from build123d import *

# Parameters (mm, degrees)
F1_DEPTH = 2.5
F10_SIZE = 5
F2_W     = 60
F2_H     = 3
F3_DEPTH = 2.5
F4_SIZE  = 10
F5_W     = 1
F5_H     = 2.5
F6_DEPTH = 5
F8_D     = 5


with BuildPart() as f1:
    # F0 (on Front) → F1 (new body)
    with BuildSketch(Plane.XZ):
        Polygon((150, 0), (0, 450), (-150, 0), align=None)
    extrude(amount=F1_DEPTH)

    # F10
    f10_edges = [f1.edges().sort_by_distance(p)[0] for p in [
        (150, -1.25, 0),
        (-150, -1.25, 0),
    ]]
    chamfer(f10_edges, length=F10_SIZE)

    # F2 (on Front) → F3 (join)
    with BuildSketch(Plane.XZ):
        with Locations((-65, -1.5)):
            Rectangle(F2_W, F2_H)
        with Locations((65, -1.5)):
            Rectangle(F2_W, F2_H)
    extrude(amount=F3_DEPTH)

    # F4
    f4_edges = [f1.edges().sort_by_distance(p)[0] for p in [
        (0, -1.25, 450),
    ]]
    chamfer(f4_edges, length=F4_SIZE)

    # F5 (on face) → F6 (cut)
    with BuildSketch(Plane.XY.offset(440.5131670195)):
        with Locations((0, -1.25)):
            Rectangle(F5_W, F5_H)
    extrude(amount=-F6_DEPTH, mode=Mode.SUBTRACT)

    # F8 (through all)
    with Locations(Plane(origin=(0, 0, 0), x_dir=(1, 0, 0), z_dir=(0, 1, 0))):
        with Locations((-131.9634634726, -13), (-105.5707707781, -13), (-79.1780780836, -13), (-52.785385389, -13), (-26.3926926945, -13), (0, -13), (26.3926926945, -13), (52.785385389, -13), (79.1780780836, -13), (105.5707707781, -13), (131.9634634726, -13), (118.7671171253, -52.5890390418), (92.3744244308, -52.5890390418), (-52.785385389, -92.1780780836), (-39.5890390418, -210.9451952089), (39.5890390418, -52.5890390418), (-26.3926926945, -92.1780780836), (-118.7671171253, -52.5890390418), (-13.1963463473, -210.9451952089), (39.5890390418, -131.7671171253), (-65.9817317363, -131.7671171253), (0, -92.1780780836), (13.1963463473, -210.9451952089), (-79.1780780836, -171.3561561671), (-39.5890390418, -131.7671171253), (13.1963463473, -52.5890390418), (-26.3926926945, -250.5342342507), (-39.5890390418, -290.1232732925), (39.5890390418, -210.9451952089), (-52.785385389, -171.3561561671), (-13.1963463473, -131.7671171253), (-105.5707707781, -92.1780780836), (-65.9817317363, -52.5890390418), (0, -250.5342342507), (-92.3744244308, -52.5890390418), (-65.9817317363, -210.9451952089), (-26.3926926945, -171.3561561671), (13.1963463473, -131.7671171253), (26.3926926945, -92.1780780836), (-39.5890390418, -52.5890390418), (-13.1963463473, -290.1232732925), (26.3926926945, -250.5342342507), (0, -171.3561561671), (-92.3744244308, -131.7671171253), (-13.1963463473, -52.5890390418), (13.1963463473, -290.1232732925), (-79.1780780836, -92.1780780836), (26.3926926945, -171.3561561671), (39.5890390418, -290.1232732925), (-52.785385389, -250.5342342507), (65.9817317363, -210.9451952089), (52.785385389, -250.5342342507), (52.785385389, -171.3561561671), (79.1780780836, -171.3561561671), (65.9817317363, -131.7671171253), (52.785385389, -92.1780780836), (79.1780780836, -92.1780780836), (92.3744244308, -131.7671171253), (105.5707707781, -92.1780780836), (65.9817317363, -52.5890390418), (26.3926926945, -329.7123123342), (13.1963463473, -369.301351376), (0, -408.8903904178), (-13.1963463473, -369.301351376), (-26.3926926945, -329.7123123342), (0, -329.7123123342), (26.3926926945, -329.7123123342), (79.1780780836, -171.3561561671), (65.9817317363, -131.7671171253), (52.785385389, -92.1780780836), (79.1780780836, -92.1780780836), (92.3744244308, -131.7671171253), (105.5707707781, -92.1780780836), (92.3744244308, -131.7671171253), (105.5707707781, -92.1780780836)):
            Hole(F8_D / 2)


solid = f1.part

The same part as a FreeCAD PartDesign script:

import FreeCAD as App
import Part
import Sketcher
Q = App.Units.Quantity


def edges_at(feature, points):
    """Names of the edges that pass closest to the given points."""
    edges = feature.Shape.Edges
    near = lambda p: min(range(len(edges)), key=lambda i: edges[i].distToShape(Part.Vertex(*p))[0])
    return sorted({f"Edge{near(p) + 1}" for p in points})


def add_polygon(sketch, points):
    """Adds a closed chain of lines whose ends are joined by coincident constraints."""
    first, n = sketch.GeometryCount, len(points)
    for a, b in zip(points, points[1:] + points[:1]):
        sketch.addGeometry(Part.LineSegment(App.Vector(*a, 0), App.Vector(*b, 0)), False)
    for i in range(n):
        sketch.addConstraint(Sketcher.Constraint("Coincident", first + i, 2, first + (i + 1) % n, 1))

doc = App.newDocument("Part")
body = doc.addObject("PartDesign::Body", "Body")

# Sketch on XZ plane
sketch1 = body.newObject("Sketcher::SketchObject", "Sketch")
sketch1.AttachmentSupport = (doc.getObject("XZ_Plane"), [""])
sketch1.MapMode = "FlatFace"
add_polygon(sketch1, [(150, 0), (0, 450), (-150, 0)])  # lines 0-2
sketch1.addConstraint(Sketcher.Constraint("Horizontal", 2))
sketch1.addConstraint(Sketcher.Constraint("Symmetric", 1, 2, 2, 2, -1, 1))
sketch1.addConstraint(Sketcher.Constraint("PointOnObject", 0, 2, -2))
sketch1.addConstraint(Sketcher.Constraint("DistanceX", 2, 1, 2, 2, Q("300 mm")))
sketch1.addConstraint(Sketcher.Constraint("DistanceY", -1, 1, 0, 2, Q("450 mm")))
pad1 = body.newObject("PartDesign::Pad", "Pad")
pad1.Profile = sketch1
pad1.Length = 2.5
doc.recompute()

chamfer = body.newObject("PartDesign::Chamfer", "Chamfer")
chamfer.Base = (pad1, edges_at(pad1, [(150, -1.25, 0), (-150, -1.25, 0)]))
chamfer.Size = 5

# Sketch on XZ plane
sketch2 = body.newObject("Sketcher::SketchObject", "Sketch001")
sketch2.AttachmentSupport = (doc.getObject("XZ_Plane"), [""])
sketch2.MapMode = "FlatFace"
add_polygon(sketch2, [(-95, 0), (-95, -3), (-35, -3), (-35, 0)])  # lines 0-3
add_polygon(sketch2, [(35, 0), (35, -3), (95, -3), (95, 0)])  # lines 4-7
sketch2.addConstraint(Sketcher.Constraint("Vertical", 0))
sketch2.addConstraint(Sketcher.Constraint("Horizontal", 1))
sketch2.addConstraint(Sketcher.Constraint("Vertical", 2))
sketch2.addConstraint(Sketcher.Constraint("Horizontal", 3))
sketch2.addConstraint(Sketcher.Constraint("Vertical", 4))
sketch2.addConstraint(Sketcher.Constraint("Horizontal", 5))
sketch2.addConstraint(Sketcher.Constraint("Vertical", 6))
sketch2.addConstraint(Sketcher.Constraint("Horizontal", 7))
sketch2.addConstraint(Sketcher.Constraint("Symmetric", 3, 2, 6, 2, -1, 1))
sketch2.addConstraint(Sketcher.Constraint("Symmetric", 1, 2, 4, 2, -2))
sketch2.addConstraint(Sketcher.Constraint("PointOnObject", 2, 2, -1))
sketch2.addConstraint(Sketcher.Constraint("DistanceX", 1, 1, 1, 2, Q("60 mm")))
sketch2.addConstraint(Sketcher.Constraint("DistanceY", 0, 2, 0, 1, Q("3 mm")))
sketch2.addConstraint(Sketcher.Constraint("DistanceX", 0, 2, -1, 1, Q("95 mm")))
pad2 = body.newObject("PartDesign::Pad", "Pad001")
pad2.Profile = sketch2
pad2.Length = 2.5
doc.recompute()

chamfer2 = body.newObject("PartDesign::Chamfer", "Chamfer001")
chamfer2.Base = (pad2, edges_at(pad2, [(0, -1.25, 450)]))
chamfer2.Size = 10

# Sketch on XY plane
sketch3 = body.newObject("Sketcher::SketchObject", "Sketch002")
sketch3.AttachmentSupport = (doc.getObject("XY_Plane"), [""])
sketch3.MapMode = "FlatFace"
sketch3.AttachmentOffset = App.Placement(App.Vector(0, 0, 440.513167), App.Rotation())
add_polygon(sketch3, [(-0.5, 0), (-0.5, -2.5), (0.5, -2.5), (0.5, 0)])  # lines 0-3
sketch3.addConstraint(Sketcher.Constraint("Vertical", 0))
sketch3.addConstraint(Sketcher.Constraint("Horizontal", 1))
sketch3.addConstraint(Sketcher.Constraint("Vertical", 2))
sketch3.addConstraint(Sketcher.Constraint("Horizontal", 3))
sketch3.addConstraint(Sketcher.Constraint("Symmetric", 2, 2, 3, 2, -1, 1))
sketch3.addConstraint(Sketcher.Constraint("DistanceX", 1, 1, 1, 2, Q("1 mm")))
sketch3.addConstraint(Sketcher.Constraint("DistanceY", 0, 2, 0, 1, Q("2.5 mm")))
pocket1 = body.newObject("PartDesign::Pocket", "Pocket")
pocket1.Profile = sketch3
pocket1.Length = 5

# Sketch on XZ plane
sketch4 = body.newObject("Sketcher::SketchObject", "Sketch003")
sketch4.AttachmentSupport = (doc.getObject("XZ_Plane"), [""])
sketch4.MapMode = "FlatFace"
sketch4.addGeometry(Part.Circle(App.Vector(-132, 13, 0), App.Vector(0, 0, 1), 2.5), False)
sketch4.addGeometry(Part.Circle(App.Vector(-105.6, 13, 0), App.Vector(0, 0, 1), 2.5), False)
sketch4.addGeometry(Part.Circle(App.Vector(-79.2, 13, 0), App.Vector(0, 0, 1), 2.5), False)
sketch4.addGeometry(Part.Circle(App.Vector(-52.8, 13, 0), App.Vector(0, 0, 1), 2.5), False)
sketch4.addGeometry(Part.Circle(App.Vector(-26.4, 13, 0), App.Vector(0, 0, 1), 2.5), False)
sketch4.addGeometry(Part.Circle(App.Vector(0, 13, 0), App.Vector(0, 0, 1), 2.5), False)
sketch4.addGeometry(Part.Circle(App.Vector(26.4, 13, 0), App.Vector(0, 0, 1), 2.5), False)
sketch4.addGeometry(Part.Circle(App.Vector(52.8, 13, 0), App.Vector(0, 0, 1), 2.5), False)
sketch4.addGeometry(Part.Circle(App.Vector(79.2, 13, 0), App.Vector(0, 0, 1), 2.5), False)
sketch4.addGeometry(Part.Circle(App.Vector(105.6, 13, 0), App.Vector(0, 0, 1), 2.5), False)
sketch4.addGeometry(Part.Circle(App.Vector(132, 13, 0), App.Vector(0, 0, 1), 2.5), False)
sketch4.addGeometry(Part.Circle(App.Vector(118.8, 52.6, 0), App.Vector(0, 0, 1), 2.5), False)
sketch4.addGeometry(Part.Circle(App.Vector(92.4, 52.6, 0), App.Vector(0, 0, 1), 2.5), False)
sketch4.addGeometry(Part.Circle(App.Vector(-52.8, 92.2, 0), App.Vector(0, 0, 1), 2.5), False)
sketch4.addGeometry(Part.Circle(App.Vector(-39.6, 210.9, 0), App.Vector(0, 0, 1), 2.5), False)
sketch4.addGeometry(Part.Circle(App.Vector(39.6, 52.6, 0), App.Vector(0, 0, 1), 2.5), False)
sketch4.addGeometry(Part.Circle(App.Vector(-26.4, 92.2, 0), App.Vector(0, 0, 1), 2.5), False)
sketch4.addGeometry(Part.Circle(App.Vector(-118.8, 52.6, 0), App.Vector(0, 0, 1), 2.5), False)
sketch4.addGeometry(Part.Circle(App.Vector(-13.2, 210.9, 0), App.Vector(0, 0, 1), 2.5), False)
sketch4.addGeometry(Part.Circle(App.Vector(39.6, 131.8, 0), App.Vector(0, 0, 1), 2.5), False)
sketch4.addGeometry(Part.Circle(App.Vector(-66, 131.8, 0), App.Vector(0, 0, 1), 2.5), False)
sketch4.addGeometry(Part.Circle(App.Vector(0, 92.2, 0), App.Vector(0, 0, 1), 2.5), False)
sketch4.addGeometry(Part.Circle(App.Vector(13.2, 210.9, 0), App.Vector(0, 0, 1), 2.5), False)
sketch4.addGeometry(Part.Circle(App.Vector(-79.2, 171.4, 0), App.Vector(0, 0, 1), 2.5), False)
sketch4.addGeometry(Part.Circle(App.Vector(-39.6, 131.8, 0), App.Vector(0, 0, 1), 2.5), False)
sketch4.addGeometry(Part.Circle(App.Vector(13.2, 52.6, 0), App.Vector(0, 0, 1), 2.5), False)
sketch4.addGeometry(Part.Circle(App.Vector(-26.4, 250.5, 0), App.Vector(0, 0, 1), 2.5), False)
sketch4.addGeometry(Part.Circle(App.Vector(-39.6, 290.1, 0), App.Vector(0, 0, 1), 2.5), False)
sketch4.addGeometry(Part.Circle(App.Vector(39.6, 210.9, 0), App.Vector(0, 0, 1), 2.5), False)
sketch4.addGeometry(Part.Circle(App.Vector(-52.8, 171.4, 0), App.Vector(0, 0, 1), 2.5), False)
sketch4.addGeometry(Part.Circle(App.Vector(-13.2, 131.8, 0), App.Vector(0, 0, 1), 2.5), False)
sketch4.addGeometry(Part.Circle(App.Vector(-105.6, 92.2, 0), App.Vector(0, 0, 1), 2.5), False)
sketch4.addGeometry(Part.Circle(App.Vector(-66, 52.6, 0), App.Vector(0, 0, 1), 2.5), False)
sketch4.addGeometry(Part.Circle(App.Vector(0, 250.5, 0), App.Vector(0, 0, 1), 2.5), False)
sketch4.addGeometry(Part.Circle(App.Vector(-92.4, 52.6, 0), App.Vector(0, 0, 1), 2.5), False)
sketch4.addGeometry(Part.Circle(App.Vector(-66, 210.9, 0), App.Vector(0, 0, 1), 2.5), False)
sketch4.addGeometry(Part.Circle(App.Vector(-26.4, 171.4, 0), App.Vector(0, 0, 1), 2.5), False)
sketch4.addGeometry(Part.Circle(App.Vector(13.2, 131.8, 0), App.Vector(0, 0, 1), 2.5), False)
sketch4.addGeometry(Part.Circle(App.Vector(26.4, 92.2, 0), App.Vector(0, 0, 1), 2.5), False)
sketch4.addGeometry(Part.Circle(App.Vector(-39.6, 52.6, 0), App.Vector(0, 0, 1), 2.5), False)
sketch4.addGeometry(Part.Circle(App.Vector(-13.2, 290.1, 0), App.Vector(0, 0, 1), 2.5), False)
sketch4.addGeometry(Part.Circle(App.Vector(26.4, 250.5, 0), App.Vector(0, 0, 1), 2.5), False)
sketch4.addGeometry(Part.Circle(App.Vector(0, 171.4, 0), App.Vector(0, 0, 1), 2.5), False)
sketch4.addGeometry(Part.Circle(App.Vector(-92.4, 131.8, 0), App.Vector(0, 0, 1), 2.5), False)
sketch4.addGeometry(Part.Circle(App.Vector(-13.2, 52.6, 0), App.Vector(0, 0, 1), 2.5), False)
sketch4.addGeometry(Part.Circle(App.Vector(13.2, 290.1, 0), App.Vector(0, 0, 1), 2.5), False)
sketch4.addGeometry(Part.Circle(App.Vector(-79.2, 92.2, 0), App.Vector(0, 0, 1), 2.5), False)
sketch4.addGeometry(Part.Circle(App.Vector(26.4, 171.4, 0), App.Vector(0, 0, 1), 2.5), False)
sketch4.addGeometry(Part.Circle(App.Vector(39.6, 290.1, 0), App.Vector(0, 0, 1), 2.5), False)
sketch4.addGeometry(Part.Circle(App.Vector(-52.8, 250.5, 0), App.Vector(0, 0, 1), 2.5), False)
sketch4.addGeometry(Part.Circle(App.Vector(66, 210.9, 0), App.Vector(0, 0, 1), 2.5), False)
sketch4.addGeometry(Part.Circle(App.Vector(52.8, 250.5, 0), App.Vector(0, 0, 1), 2.5), False)
sketch4.addGeometry(Part.Circle(App.Vector(52.8, 171.4, 0), App.Vector(0, 0, 1), 2.5), False)
sketch4.addGeometry(Part.Circle(App.Vector(79.2, 171.4, 0), App.Vector(0, 0, 1), 2.5), False)
sketch4.addGeometry(Part.Circle(App.Vector(66, 131.8, 0), App.Vector(0, 0, 1), 2.5), False)
sketch4.addGeometry(Part.Circle(App.Vector(52.8, 92.2, 0), App.Vector(0, 0, 1), 2.5), False)
sketch4.addGeometry(Part.Circle(App.Vector(79.2, 92.2, 0), App.Vector(0, 0, 1), 2.5), False)
sketch4.addGeometry(Part.Circle(App.Vector(92.4, 131.8, 0), App.Vector(0, 0, 1), 2.5), False)
sketch4.addGeometry(Part.Circle(App.Vector(105.6, 92.2, 0), App.Vector(0, 0, 1), 2.5), False)
sketch4.addGeometry(Part.Circle(App.Vector(66, 52.6, 0), App.Vector(0, 0, 1), 2.5), False)
sketch4.addGeometry(Part.Circle(App.Vector(26.4, 329.7, 0), App.Vector(0, 0, 1), 2.5), False)
sketch4.addGeometry(Part.Circle(App.Vector(13.2, 369.3, 0), App.Vector(0, 0, 1), 2.5), False)
sketch4.addGeometry(Part.Circle(App.Vector(0, 408.9, 0), App.Vector(0, 0, 1), 2.5), False)
sketch4.addGeometry(Part.Circle(App.Vector(-13.2, 369.3, 0), App.Vector(0, 0, 1), 2.5), False)
sketch4.addGeometry(Part.Circle(App.Vector(-26.4, 329.7, 0), App.Vector(0, 0, 1), 2.5), False)
sketch4.addGeometry(Part.Circle(App.Vector(0, 329.7, 0), App.Vector(0, 0, 1), 2.5), False)
sketch4.addGeometry(Part.Circle(App.Vector(26.4, 329.7, 0), App.Vector(0, 0, 1), 2.5), False)
sketch4.addGeometry(Part.Circle(App.Vector(79.2, 171.4, 0), App.Vector(0, 0, 1), 2.5), False)
sketch4.addGeometry(Part.Circle(App.Vector(66, 131.8, 0), App.Vector(0, 0, 1), 2.5), False)
sketch4.addGeometry(Part.Circle(App.Vector(52.8, 92.2, 0), App.Vector(0, 0, 1), 2.5), False)
sketch4.addGeometry(Part.Circle(App.Vector(79.2, 92.2, 0), App.Vector(0, 0, 1), 2.5), False)
sketch4.addGeometry(Part.Circle(App.Vector(92.4, 131.8, 0), App.Vector(0, 0, 1), 2.5), False)
sketch4.addGeometry(Part.Circle(App.Vector(105.6, 92.2, 0), App.Vector(0, 0, 1), 2.5), False)
sketch4.addGeometry(Part.Circle(App.Vector(92.4, 131.8, 0), App.Vector(0, 0, 1), 2.5), False)
sketch4.addGeometry(Part.Circle(App.Vector(105.6, 92.2, 0), App.Vector(0, 0, 1), 2.5), False)
sketch4.addConstraint(Sketcher.Constraint("Coincident", 66, 3, 60, 3))
sketch4.addConstraint(Sketcher.Constraint("Coincident", 67, 3, 53, 3))
sketch4.addConstraint(Sketcher.Constraint("Coincident", 68, 3, 54, 3))
sketch4.addConstraint(Sketcher.Constraint("Coincident", 69, 3, 55, 3))
sketch4.addConstraint(Sketcher.Constraint("Coincident", 70, 3, 56, 3))
sketch4.addConstraint(Sketcher.Constraint("Coincident", 71, 3, 57, 3))
sketch4.addConstraint(Sketcher.Constraint("Coincident", 72, 3, 58, 3))
sketch4.addConstraint(Sketcher.Constraint("Coincident", 73, 3, 57, 3))
sketch4.addConstraint(Sketcher.Constraint("Coincident", 74, 3, 58, 3))
sketch4.addConstraint(Sketcher.Constraint("Equal", 0, 1))
sketch4.addConstraint(Sketcher.Constraint("Equal", 1, 2))
sketch4.addConstraint(Sketcher.Constraint("Equal", 2, 3))
sketch4.addConstraint(Sketcher.Constraint("Equal", 3, 4))
sketch4.addConstraint(Sketcher.Constraint("Equal", 4, 5))
sketch4.addConstraint(Sketcher.Constraint("Equal", 5, 6))
sketch4.addConstraint(Sketcher.Constraint("Equal", 6, 7))
sketch4.addConstraint(Sketcher.Constraint("Equal", 7, 8))
sketch4.addConstraint(Sketcher.Constraint("Equal", 8, 9))
sketch4.addConstraint(Sketcher.Constraint("Equal", 9, 10))
sketch4.addConstraint(Sketcher.Constraint("Equal", 10, 11))
sketch4.addConstraint(Sketcher.Constraint("Equal", 11, 12))
sketch4.addConstraint(Sketcher.Constraint("Equal", 12, 13))
sketch4.addConstraint(Sketcher.Constraint("Equal", 13, 14))
sketch4.addConstraint(Sketcher.Constraint("Equal", 14, 15))
sketch4.addConstraint(Sketcher.Constraint("Equal", 15, 16))
sketch4.addConstraint(Sketcher.Constraint("Equal", 16, 17))
sketch4.addConstraint(Sketcher.Constraint("Equal", 17, 18))
sketch4.addConstraint(Sketcher.Constraint("Equal", 18, 19))
sketch4.addConstraint(Sketcher.Constraint("Equal", 19, 20))
sketch4.addConstraint(Sketcher.Constraint("Equal", 20, 21))
sketch4.addConstraint(Sketcher.Constraint("Equal", 21, 22))
sketch4.addConstraint(Sketcher.Constraint("Equal", 22, 23))
sketch4.addConstraint(Sketcher.Constraint("Equal", 23, 24))
sketch4.addConstraint(Sketcher.Constraint("Equal", 24, 25))
sketch4.addConstraint(Sketcher.Constraint("Equal", 25, 26))
sketch4.addConstraint(Sketcher.Constraint("Equal", 26, 27))
sketch4.addConstraint(Sketcher.Constraint("Equal", 27, 28))
sketch4.addConstraint(Sketcher.Constraint("Equal", 28, 29))
sketch4.addConstraint(Sketcher.Constraint("Equal", 29, 30))
sketch4.addConstraint(Sketcher.Constraint("Equal", 30, 31))
sketch4.addConstraint(Sketcher.Constraint("Equal", 31, 32))
sketch4.addConstraint(Sketcher.Constraint("Equal", 32, 33))
sketch4.addConstraint(Sketcher.Constraint("Equal", 33, 34))
sketch4.addConstraint(Sketcher.Constraint("Equal", 34, 35))
sketch4.addConstraint(Sketcher.Constraint("Equal", 35, 36))
sketch4.addConstraint(Sketcher.Constraint("Equal", 36, 37))
sketch4.addConstraint(Sketcher.Constraint("Equal", 37, 38))
sketch4.addConstraint(Sketcher.Constraint("Equal", 38, 39))
sketch4.addConstraint(Sketcher.Constraint("Equal", 39, 40))
sketch4.addConstraint(Sketcher.Constraint("Equal", 40, 41))
sketch4.addConstraint(Sketcher.Constraint("Equal", 41, 42))
sketch4.addConstraint(Sketcher.Constraint("Equal", 42, 43))
sketch4.addConstraint(Sketcher.Constraint("Equal", 43, 44))
sketch4.addConstraint(Sketcher.Constraint("Equal", 44, 45))
sketch4.addConstraint(Sketcher.Constraint("Equal", 45, 46))
sketch4.addConstraint(Sketcher.Constraint("Equal", 46, 47))
sketch4.addConstraint(Sketcher.Constraint("Equal", 47, 48))
sketch4.addConstraint(Sketcher.Constraint("Equal", 48, 49))
sketch4.addConstraint(Sketcher.Constraint("Equal", 49, 50))
sketch4.addConstraint(Sketcher.Constraint("Equal", 50, 51))
sketch4.addConstraint(Sketcher.Constraint("Equal", 51, 52))
sketch4.addConstraint(Sketcher.Constraint("Equal", 52, 53))
sketch4.addConstraint(Sketcher.Constraint("Equal", 53, 54))
sketch4.addConstraint(Sketcher.Constraint("Equal", 54, 55))
sketch4.addConstraint(Sketcher.Constraint("Equal", 55, 56))
sketch4.addConstraint(Sketcher.Constraint("Equal", 56, 57))
sketch4.addConstraint(Sketcher.Constraint("Equal", 57, 58))
sketch4.addConstraint(Sketcher.Constraint("Equal", 58, 59))
sketch4.addConstraint(Sketcher.Constraint("Equal", 59, 60))
sketch4.addConstraint(Sketcher.Constraint("Equal", 60, 61))
sketch4.addConstraint(Sketcher.Constraint("Equal", 61, 62))
sketch4.addConstraint(Sketcher.Constraint("Equal", 62, 63))
sketch4.addConstraint(Sketcher.Constraint("Equal", 63, 64))
sketch4.addConstraint(Sketcher.Constraint("Equal", 64, 65))
sketch4.addConstraint(Sketcher.Constraint("Equal", 65, 66))
sketch4.addConstraint(Sketcher.Constraint("Equal", 66, 67))
sketch4.addConstraint(Sketcher.Constraint("Equal", 67, 68))
sketch4.addConstraint(Sketcher.Constraint("Equal", 68, 69))
sketch4.addConstraint(Sketcher.Constraint("Equal", 69, 70))
sketch4.addConstraint(Sketcher.Constraint("Equal", 70, 71))
sketch4.addConstraint(Sketcher.Constraint("Equal", 71, 72))
sketch4.addConstraint(Sketcher.Constraint("Equal", 72, 73))
sketch4.addConstraint(Sketcher.Constraint("Equal", 73, 74))
sketch4.addConstraint(Sketcher.Constraint("Symmetric", 4, 3, 6, 3, -2))
sketch4.addConstraint(Sketcher.Constraint("Symmetric", 3, 3, 7, 3, -2))
sketch4.addConstraint(Sketcher.Constraint("Symmetric", 2, 3, 8, 3, -2))
sketch4.addConstraint(Sketcher.Constraint("Symmetric", 1, 3, 9, 3, -2))
sketch4.addConstraint(Sketcher.Constraint("Symmetric", 0, 3, 10, 3, -2))
sketch4.addConstraint(Sketcher.Constraint("Symmetric", 11, 3, 17, 3, -2))
sketch4.addConstraint(Sketcher.Constraint("Symmetric", 18, 3, 22, 3, -2))
sketch4.addConstraint(Sketcher.Constraint("Symmetric", 19, 3, 24, 3, -2))
sketch4.addConstraint(Sketcher.Constraint("Symmetric", 14, 3, 28, 3, -2))
sketch4.addConstraint(Sketcher.Constraint("Symmetric", 12, 3, 34, 3, -2))
sketch4.addConstraint(Sketcher.Constraint("Symmetric", 30, 3, 37, 3, -2))
sketch4.addConstraint(Sketcher.Constraint("Symmetric", 16, 3, 38, 3, -2))
sketch4.addConstraint(Sketcher.Constraint("Symmetric", 15, 3, 39, 3, -2))
sketch4.addConstraint(Sketcher.Constraint("Symmetric", 26, 3, 41, 3, -2))
sketch4.addConstraint(Sketcher.Constraint("Symmetric", 25, 3, 44, 3, -2))
sketch4.addConstraint(Sketcher.Constraint("Symmetric", 40, 3, 45, 3, -2))
sketch4.addConstraint(Sketcher.Constraint("Symmetric", 36, 3, 47, 3, -2))
sketch4.addConstraint(Sketcher.Constraint("Symmetric", 27, 3, 48, 3, -2))
sketch4.addConstraint(Sketcher.Constraint("Symmetric", 35, 3, 50, 3, -2))
sketch4.addConstraint(Sketcher.Constraint("Symmetric", 49, 3, 51, 3, -2))
sketch4.addConstraint(Sketcher.Constraint("Symmetric", 29, 3, 52, 3, -2))
sketch4.addConstraint(Sketcher.Constraint("Symmetric", 23, 3, 53, 3, -2))
sketch4.addConstraint(Sketcher.Constraint("Symmetric", 20, 3, 54, 3, -2))
sketch4.addConstraint(Sketcher.Constraint("Symmetric", 13, 3, 55, 3, -2))
sketch4.addConstraint(Sketcher.Constraint("Symmetric", 46, 3, 56, 3, -2))
sketch4.addConstraint(Sketcher.Constraint("Symmetric", 43, 3, 57, 3, -2))
sketch4.addConstraint(Sketcher.Constraint("Symmetric", 31, 3, 58, 3, -2))
sketch4.addConstraint(Sketcher.Constraint("Symmetric", 32, 3, 59, 3, -2))
sketch4.addConstraint(Sketcher.Constraint("Symmetric", 61, 3, 63, 3, -2))
sketch4.addConstraint(Sketcher.Constraint("Symmetric", 60, 3, 64, 3, -2))
sketch4.addConstraint(Sketcher.Constraint("PointOnObject", 5, 3, -2))
sketch4.addConstraint(Sketcher.Constraint("PointOnObject", 21, 3, -2))
sketch4.addConstraint(Sketcher.Constraint("PointOnObject", 33, 3, -2))
sketch4.addConstraint(Sketcher.Constraint("PointOnObject", 42, 3, -2))
sketch4.addConstraint(Sketcher.Constraint("PointOnObject", 62, 3, -2))
sketch4.addConstraint(Sketcher.Constraint("PointOnObject", 65, 3, -2))
sketch4.addConstraint(Sketcher.Constraint("Horizontal", 0, 3, 1, 3))
sketch4.addConstraint(Sketcher.Constraint("Horizontal", 1, 3, 2, 3))
sketch4.addConstraint(Sketcher.Constraint("Horizontal", 2, 3, 3, 3))
sketch4.addConstraint(Sketcher.Constraint("Horizontal", 3, 3, 4, 3))
sketch4.addConstraint(Sketcher.Constraint("Horizontal", 4, 3, 5, 3))
sketch4.addConstraint(Sketcher.Constraint("Horizontal", 11, 3, 12, 3))
sketch4.addConstraint(Sketcher.Constraint("Horizontal", 12, 3, 15, 3))
sketch4.addConstraint(Sketcher.Constraint("Horizontal", 13, 3, 16, 3))
sketch4.addConstraint(Sketcher.Constraint("Horizontal", 14, 3, 18, 3))
sketch4.addConstraint(Sketcher.Constraint("Horizontal", 19, 3, 20, 3))
sketch4.addConstraint(Sketcher.Constraint("Horizontal", 16, 3, 21, 3))
sketch4.addConstraint(Sketcher.Constraint("Horizontal", 17, 3, 25, 3))
sketch4.addConstraint(Sketcher.Constraint("Horizontal", 23, 3, 29, 3))
sketch4.addConstraint(Sketcher.Constraint("Horizontal", 24, 3, 30, 3))
sketch4.addConstraint(Sketcher.Constraint("Horizontal", 21, 3, 31, 3))
sketch4.addConstraint(Sketcher.Constraint("Horizontal", 25, 3, 32, 3))
sketch4.addConstraint(Sketcher.Constraint("Horizontal", 26, 3, 33, 3))
sketch4.addConstraint(Sketcher.Constraint("Horizontal", 28, 3, 35, 3))
sketch4.addConstraint(Sketcher.Constraint("Horizontal", 29, 3, 36, 3))
sketch4.addConstraint(Sketcher.Constraint("Horizontal", 27, 3, 40, 3))
sketch4.addConstraint(Sketcher.Constraint("Horizontal", 36, 3, 42, 3))
sketch4.addConstraint(Sketcher.Constraint("Horizontal", 37, 3, 43, 3))
sketch4.addConstraint(Sketcher.Constraint("Horizontal", 38, 3, 46, 3))
sketch4.addConstraint(Sketcher.Constraint("Horizontal", 41, 3, 49, 3))
sketch4.addConstraint(Sketcher.Constraint("Horizontal", 64, 3, 65, 3))
sketch4.addConstraint(Sketcher.Constraint("Vertical", 3, 3, 13, 3))
sketch4.addConstraint(Sketcher.Constraint("Vertical", 4, 3, 16, 3))
sketch4.addConstraint(Sketcher.Constraint("Vertical", 15, 3, 19, 3))
sketch4.addConstraint(Sketcher.Constraint("Vertical", 2, 3, 23, 3))
sketch4.addConstraint(Sketcher.Constraint("Vertical", 14, 3, 24, 3))
sketch4.addConstraint(Sketcher.Constraint("Vertical", 22, 3, 25, 3))
sketch4.addConstraint(Sketcher.Constraint("Vertical", 16, 3, 26, 3))
sketch4.addConstraint(Sketcher.Constraint("Vertical", 24, 3, 27, 3))
sketch4.addConstraint(Sketcher.Constraint("Vertical", 13, 3, 29, 3))
sketch4.addConstraint(Sketcher.Constraint("Vertical", 18, 3, 30, 3))
sketch4.addConstraint(Sketcher.Constraint("Vertical", 1, 3, 31, 3))
sketch4.addConstraint(Sketcher.Constraint("Vertical", 20, 3, 32, 3))
sketch4.addConstraint(Sketcher.Constraint("Vertical", 32, 3, 35, 3))
sketch4.addConstraint(Sketcher.Constraint("Vertical", 26, 3, 36, 3))
sketch4.addConstraint(Sketcher.Constraint("Vertical", 30, 3, 40, 3))
sketch4.addConstraint(Sketcher.Constraint("Vertical", 34, 3, 43, 3))
sketch4.addConstraint(Sketcher.Constraint("Vertical", 23, 3, 46, 3))
sketch4.addConstraint(Sketcher.Constraint("Vertical", 29, 3, 49, 3))
sketch4.addConstraint(Sketcher.Constraint("Vertical", 47, 3, 60, 3))
sketch4.addConstraint(Sketcher.Constraint("Vertical", 45, 3, 61, 3))
sketch4.addConstraint(Sketcher.Constraint("Diameter", 0, Q("5 mm")))
sketch4.addConstraint(Sketcher.Constraint("DistanceY", -1, 1, 0, 3, Q("13 mm")))
sketch4.addConstraint(Sketcher.Constraint("DistanceX", 1, 3, -1, 1, Q("105.570771 mm")))
sketch4.addConstraint(Sketcher.Constraint("DistanceX", 2, 3, -1, 1, Q("79.178078 mm")))
sketch4.addConstraint(Sketcher.Constraint("DistanceY", -1, 1, 11, 3, Q("52.589039 mm")))
sketch4.addConstraint(Sketcher.Constraint("DistanceY", -1, 1, 13, 3, Q("92.178078 mm")))
sketch4.addConstraint(Sketcher.Constraint("DistanceX", 14, 3, -1, 1, Q("39.589039 mm")))
sketch4.addConstraint(Sketcher.Constraint("DistanceX", 20, 3, -1, 1, Q("65.981732 mm")))
sketch4.addConstraint(Sketcher.Constraint("DistanceY", -1, 1, 61, 3, Q("369.301351 mm")))
sketch4.addConstraint(Sketcher.Constraint("DistanceY", -1, 1, 62, 3, Q("408.89039 mm")))
sketch4.addConstraint(Sketcher.Constraint("DistanceX", 0, 3, -1, 1, Q("131.963463 mm")))
sketch4.addConstraint(Sketcher.Constraint("DistanceX", 3, 3, -1, 1, Q("52.785385 mm")))
sketch4.addConstraint(Sketcher.Constraint("DistanceX", 4, 3, -1, 1, Q("26.392693 mm")))
sketch4.addConstraint(Sketcher.Constraint("DistanceX", -1, 1, 11, 3, Q("118.767117 mm")))
sketch4.addConstraint(Sketcher.Constraint("DistanceX", -1, 1, 12, 3, Q("92.374424 mm")))
sketch4.addConstraint(Sketcher.Constraint("DistanceY", -1, 1, 14, 3, Q("210.945195 mm")))
sketch4.addConstraint(Sketcher.Constraint("DistanceX", 18, 3, -1, 1, Q("13.196346 mm")))
sketch4.addConstraint(Sketcher.Constraint("DistanceY", -1, 1, 19, 3, Q("131.767117 mm")))
sketch4.addConstraint(Sketcher.Constraint("DistanceY", -1, 1, 23, 3, Q("171.356156 mm")))
sketch4.addConstraint(Sketcher.Constraint("DistanceY", -1, 1, 26, 3, Q("250.534234 mm")))
sketch4.addConstraint(Sketcher.Constraint("DistanceY", -1, 1, 27, 3, Q("290.123273 mm")))
sketch4.addConstraint(Sketcher.Constraint("DistanceY", -1, 1, 60, 3, Q("329.712312 mm")))
doc.recompute()
hole = body.newObject("PartDesign::Hole", "Hole")
hole.Profile = sketch4
hole.ThreadType = "None"
hole.Diameter = 5
hole.DepthType = "ThroughAll"
hole.Reversed = True

doc.recompute()
